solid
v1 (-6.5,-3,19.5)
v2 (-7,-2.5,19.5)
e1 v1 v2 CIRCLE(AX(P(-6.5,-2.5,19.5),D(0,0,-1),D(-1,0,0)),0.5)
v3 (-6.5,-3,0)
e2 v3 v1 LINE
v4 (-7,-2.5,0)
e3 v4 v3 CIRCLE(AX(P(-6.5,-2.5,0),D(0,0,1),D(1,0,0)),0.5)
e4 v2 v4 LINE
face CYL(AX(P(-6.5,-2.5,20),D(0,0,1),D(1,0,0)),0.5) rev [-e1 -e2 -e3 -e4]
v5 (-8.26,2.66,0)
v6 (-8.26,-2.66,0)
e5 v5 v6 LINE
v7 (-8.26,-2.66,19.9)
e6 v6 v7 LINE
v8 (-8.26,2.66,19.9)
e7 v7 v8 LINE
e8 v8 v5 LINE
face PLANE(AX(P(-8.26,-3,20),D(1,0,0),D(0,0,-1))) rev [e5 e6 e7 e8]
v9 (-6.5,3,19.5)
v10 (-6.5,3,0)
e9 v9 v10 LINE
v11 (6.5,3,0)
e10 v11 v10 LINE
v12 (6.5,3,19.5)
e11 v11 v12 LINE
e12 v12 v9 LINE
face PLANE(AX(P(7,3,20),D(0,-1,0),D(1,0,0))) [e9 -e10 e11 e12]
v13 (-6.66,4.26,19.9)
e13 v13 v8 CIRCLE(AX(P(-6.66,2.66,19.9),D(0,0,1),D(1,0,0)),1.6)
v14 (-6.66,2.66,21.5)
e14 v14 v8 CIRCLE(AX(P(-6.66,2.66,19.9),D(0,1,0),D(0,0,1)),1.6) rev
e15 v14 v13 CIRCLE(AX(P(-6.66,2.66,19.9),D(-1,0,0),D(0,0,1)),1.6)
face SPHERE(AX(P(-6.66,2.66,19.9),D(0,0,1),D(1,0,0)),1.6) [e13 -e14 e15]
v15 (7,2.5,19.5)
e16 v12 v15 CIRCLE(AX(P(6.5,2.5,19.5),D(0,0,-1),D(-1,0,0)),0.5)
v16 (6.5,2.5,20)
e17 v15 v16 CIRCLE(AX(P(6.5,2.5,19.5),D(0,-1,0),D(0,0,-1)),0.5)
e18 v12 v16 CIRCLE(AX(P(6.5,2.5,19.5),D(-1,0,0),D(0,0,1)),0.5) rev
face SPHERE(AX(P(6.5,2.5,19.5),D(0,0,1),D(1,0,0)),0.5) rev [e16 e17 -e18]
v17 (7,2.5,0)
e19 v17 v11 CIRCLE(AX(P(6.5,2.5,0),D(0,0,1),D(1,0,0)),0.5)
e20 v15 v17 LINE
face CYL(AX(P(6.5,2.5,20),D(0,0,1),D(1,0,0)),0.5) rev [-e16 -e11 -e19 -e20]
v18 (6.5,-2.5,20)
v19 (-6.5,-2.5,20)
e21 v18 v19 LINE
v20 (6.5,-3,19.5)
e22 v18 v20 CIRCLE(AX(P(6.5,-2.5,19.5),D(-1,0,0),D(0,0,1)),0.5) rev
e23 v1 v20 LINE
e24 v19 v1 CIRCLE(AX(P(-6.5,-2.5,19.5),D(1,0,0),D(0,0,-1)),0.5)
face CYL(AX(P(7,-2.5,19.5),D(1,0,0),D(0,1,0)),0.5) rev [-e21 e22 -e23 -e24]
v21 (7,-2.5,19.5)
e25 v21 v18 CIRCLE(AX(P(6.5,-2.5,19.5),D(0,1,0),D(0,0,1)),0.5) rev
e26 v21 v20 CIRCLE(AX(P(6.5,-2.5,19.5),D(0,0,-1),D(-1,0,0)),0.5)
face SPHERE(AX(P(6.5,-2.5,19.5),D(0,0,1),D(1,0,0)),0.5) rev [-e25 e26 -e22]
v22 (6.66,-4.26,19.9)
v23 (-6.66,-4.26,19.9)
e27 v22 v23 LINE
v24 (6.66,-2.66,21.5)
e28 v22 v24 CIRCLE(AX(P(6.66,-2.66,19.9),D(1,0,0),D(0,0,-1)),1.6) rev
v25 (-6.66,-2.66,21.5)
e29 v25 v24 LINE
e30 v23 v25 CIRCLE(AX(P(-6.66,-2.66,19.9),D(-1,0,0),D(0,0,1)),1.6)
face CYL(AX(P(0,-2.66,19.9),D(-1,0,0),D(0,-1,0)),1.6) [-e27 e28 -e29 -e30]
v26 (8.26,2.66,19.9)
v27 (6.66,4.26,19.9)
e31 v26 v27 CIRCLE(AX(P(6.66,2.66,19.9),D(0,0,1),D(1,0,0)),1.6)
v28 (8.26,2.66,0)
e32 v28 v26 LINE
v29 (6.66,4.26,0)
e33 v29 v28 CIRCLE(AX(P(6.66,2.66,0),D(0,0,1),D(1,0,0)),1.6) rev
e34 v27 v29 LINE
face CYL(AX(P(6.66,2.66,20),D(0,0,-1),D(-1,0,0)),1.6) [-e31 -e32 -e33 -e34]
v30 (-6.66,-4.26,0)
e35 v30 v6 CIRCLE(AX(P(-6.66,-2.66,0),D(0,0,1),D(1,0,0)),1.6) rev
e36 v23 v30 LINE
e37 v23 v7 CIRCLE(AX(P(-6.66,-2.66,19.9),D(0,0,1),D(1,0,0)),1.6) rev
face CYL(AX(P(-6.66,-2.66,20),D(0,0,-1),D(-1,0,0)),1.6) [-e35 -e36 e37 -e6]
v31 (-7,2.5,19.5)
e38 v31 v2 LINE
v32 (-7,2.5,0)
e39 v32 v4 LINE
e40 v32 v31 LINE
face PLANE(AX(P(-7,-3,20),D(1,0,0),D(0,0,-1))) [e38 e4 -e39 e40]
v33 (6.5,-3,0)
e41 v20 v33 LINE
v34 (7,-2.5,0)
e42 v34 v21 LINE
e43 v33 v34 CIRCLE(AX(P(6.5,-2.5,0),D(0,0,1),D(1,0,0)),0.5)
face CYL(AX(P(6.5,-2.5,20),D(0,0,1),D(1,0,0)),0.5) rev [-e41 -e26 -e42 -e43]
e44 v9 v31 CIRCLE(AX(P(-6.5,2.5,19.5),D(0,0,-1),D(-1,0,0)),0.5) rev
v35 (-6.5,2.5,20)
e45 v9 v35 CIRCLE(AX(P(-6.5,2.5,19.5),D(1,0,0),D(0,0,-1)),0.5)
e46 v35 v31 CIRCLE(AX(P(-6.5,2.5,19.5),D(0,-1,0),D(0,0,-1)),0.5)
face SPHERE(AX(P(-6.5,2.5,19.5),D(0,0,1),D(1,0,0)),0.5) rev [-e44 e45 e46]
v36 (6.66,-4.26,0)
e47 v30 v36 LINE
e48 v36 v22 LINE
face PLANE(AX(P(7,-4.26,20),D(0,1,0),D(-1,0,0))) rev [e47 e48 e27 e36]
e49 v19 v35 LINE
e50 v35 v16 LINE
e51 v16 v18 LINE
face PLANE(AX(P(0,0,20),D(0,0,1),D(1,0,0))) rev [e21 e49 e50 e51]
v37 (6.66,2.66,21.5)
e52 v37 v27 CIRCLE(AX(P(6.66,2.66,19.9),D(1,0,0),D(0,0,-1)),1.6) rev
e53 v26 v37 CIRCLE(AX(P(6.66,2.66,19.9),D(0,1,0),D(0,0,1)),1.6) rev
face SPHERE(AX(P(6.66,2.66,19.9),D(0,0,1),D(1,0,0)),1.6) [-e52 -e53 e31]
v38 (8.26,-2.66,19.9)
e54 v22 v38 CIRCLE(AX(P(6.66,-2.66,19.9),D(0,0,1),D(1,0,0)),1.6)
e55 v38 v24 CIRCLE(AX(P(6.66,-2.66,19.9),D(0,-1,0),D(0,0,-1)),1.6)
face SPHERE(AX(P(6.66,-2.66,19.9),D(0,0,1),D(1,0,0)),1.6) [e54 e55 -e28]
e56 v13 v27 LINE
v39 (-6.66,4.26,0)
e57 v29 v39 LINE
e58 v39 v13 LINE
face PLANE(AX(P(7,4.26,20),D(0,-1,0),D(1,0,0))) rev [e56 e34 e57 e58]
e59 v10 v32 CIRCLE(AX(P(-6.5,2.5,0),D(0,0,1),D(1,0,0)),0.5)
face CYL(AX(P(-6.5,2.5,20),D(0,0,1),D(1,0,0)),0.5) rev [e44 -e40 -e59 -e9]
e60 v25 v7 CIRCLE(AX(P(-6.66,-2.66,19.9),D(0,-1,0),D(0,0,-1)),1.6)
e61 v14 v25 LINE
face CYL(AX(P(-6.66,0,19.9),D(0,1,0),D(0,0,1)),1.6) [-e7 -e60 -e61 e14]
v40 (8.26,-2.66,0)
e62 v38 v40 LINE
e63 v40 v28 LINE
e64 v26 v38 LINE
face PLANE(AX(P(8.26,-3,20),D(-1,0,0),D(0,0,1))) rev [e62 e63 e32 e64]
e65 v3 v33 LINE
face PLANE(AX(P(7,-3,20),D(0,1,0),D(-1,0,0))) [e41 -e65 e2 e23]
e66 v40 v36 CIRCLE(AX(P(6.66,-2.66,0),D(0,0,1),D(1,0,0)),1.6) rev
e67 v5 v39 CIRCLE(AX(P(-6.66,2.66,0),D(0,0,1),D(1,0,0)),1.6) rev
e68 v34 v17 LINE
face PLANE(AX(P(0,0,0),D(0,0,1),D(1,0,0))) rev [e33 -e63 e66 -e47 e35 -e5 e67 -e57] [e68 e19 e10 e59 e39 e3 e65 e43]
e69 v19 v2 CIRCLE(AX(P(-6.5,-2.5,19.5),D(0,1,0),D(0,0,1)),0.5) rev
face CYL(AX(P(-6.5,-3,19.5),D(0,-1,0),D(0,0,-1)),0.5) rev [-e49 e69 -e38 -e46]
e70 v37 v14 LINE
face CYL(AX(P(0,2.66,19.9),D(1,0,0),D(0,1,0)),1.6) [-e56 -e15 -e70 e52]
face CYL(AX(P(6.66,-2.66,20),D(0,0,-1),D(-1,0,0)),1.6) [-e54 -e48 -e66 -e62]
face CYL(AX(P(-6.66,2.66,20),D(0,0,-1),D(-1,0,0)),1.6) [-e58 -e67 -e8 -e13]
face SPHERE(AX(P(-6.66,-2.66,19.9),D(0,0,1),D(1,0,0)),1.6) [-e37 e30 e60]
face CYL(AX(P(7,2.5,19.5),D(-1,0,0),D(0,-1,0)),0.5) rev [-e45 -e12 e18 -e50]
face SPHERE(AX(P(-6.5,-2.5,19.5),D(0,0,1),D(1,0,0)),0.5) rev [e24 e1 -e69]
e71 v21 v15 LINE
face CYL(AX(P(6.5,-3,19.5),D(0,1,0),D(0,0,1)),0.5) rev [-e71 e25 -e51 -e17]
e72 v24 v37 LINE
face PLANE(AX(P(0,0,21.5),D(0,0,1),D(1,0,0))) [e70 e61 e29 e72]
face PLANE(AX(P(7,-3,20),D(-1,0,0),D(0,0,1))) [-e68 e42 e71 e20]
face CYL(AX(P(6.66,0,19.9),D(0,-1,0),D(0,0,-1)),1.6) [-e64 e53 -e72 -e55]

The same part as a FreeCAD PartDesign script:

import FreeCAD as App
import Part
import Sketcher
from FreeCAD import Vector
Q = App.Units.Quantity


def edges_at(feature, points):
    """Names of the edges that pass closest to the given points."""
    edges = feature.Shape.Edges
    near = lambda p: min(range(len(edges)), key=lambda i: edges[i].distToShape(Part.Vertex(*p))[0])
    return sorted({f"Edge{near(p) + 1}" for p in points})


def add_polygon(sketch, points):
    """Adds a closed chain of lines whose ends are joined by coincident constraints."""
    first, n = sketch.GeometryCount, len(points)
    for a, b in zip(points, points[1:] + points[:1]):
        sketch.addGeometry(Part.LineSegment(App.Vector(*a, 0), App.Vector(*b, 0)), False)
    for i in range(n):
        sketch.addConstraint(Sketcher.Constraint("Coincident", first + i, 2, first + (i + 1) % n, 1))

doc = App.newDocument("Part")
params = doc.addObject("Spreadsheet::Sheet", "Params")
for row, (alias, value) in enumerate([
    ("sketch1_width", "14 mm"),
    ("sketch1_height", "6 mm"),
    ("sketch1_width2", "16.52 mm"),
    ("sketch1_height2", "8.52 mm"),
    ("pad1_length", "20 mm"),
    ("sketch2_width", "16.52 mm"),
    ("sketch2_height", "8.52 mm"),
    ("pad2_length", "1.5 mm"),
    ("fillet_radius", "1.6 mm"),
    ("fillet2_radius", "0.5 mm"),
], start=1):
    params.set(f"A{row}", alias)
    params.set(f"B{row}", "=" + value)
    params.setAlias(f"B{row}", alias)

body = doc.addObject("PartDesign::Body", "Body")

sketch1 = body.newObject("Sketcher::SketchObject", "Sketch")
sketch1.AttachmentSupport = (doc.getObject("XY_Plane"), [""])
sketch1.MapMode = "FlatFace"
add_polygon(sketch1, [(-8.26, 4.26), (-8.26, -4.26), (8.26, -4.26), (8.26, 4.26)])
add_polygon(sketch1, [(7, -3), (-7, -3), (-7, 3), (7, 3)])
sketch1.addConstraint([
    Sketcher.Constraint("Vertical", 0),
    Sketcher.Constraint("Horizontal", 1),
    Sketcher.Constraint("Vertical", 2),
    Sketcher.Constraint("Horizontal", 3),
    Sketcher.Constraint("Horizontal", 4),
    Sketcher.Constraint("Vertical", 5),
    Sketcher.Constraint("Horizontal", 6),
    Sketcher.Constraint("Vertical", 7),
    Sketcher.Constraint("Symmetric", 0, 2, 2, 2, -1, 1),
    Sketcher.Constraint("Symmetric", 4, 2, 6, 2, -1, 1),
    Sketcher.Constraint("DistanceX", 4, 2, 4, 1, Q("14 mm")),
    Sketcher.Constraint("DistanceY", 5, 1, 5, 2, Q("6 mm")),
    Sketcher.Constraint("DistanceX", 1, 1, 1, 2, Q("16.52 mm")),
    Sketcher.Constraint("DistanceY", 0, 2, 0, 1, Q("8.52 mm")),
])
sketch1.setExpression("Constraints[18]", "Params.sketch1_width")
sketch1.setExpression("Constraints[19]", "Params.sketch1_height")
sketch1.setExpression("Constraints[20]", "Params.sketch1_width2")
sketch1.setExpression("Constraints[21]", "Params.sketch1_height2")
pad1 = body.newObject("PartDesign::Pad", "Pad")
pad1.Profile = sketch1
pad1.setExpression("Length", "Params.pad1_length")

sketch2 = body.newObject("Sketcher::SketchObject", "Sketch001")
sketch2.AttachmentSupport = (doc.getObject("XY_Plane"), [""])
sketch2.MapMode = "FlatFace"
sketch2.AttachmentOffset = App.Placement(Vector(0, 0, 20), App.Rotation())
add_polygon(sketch2, [(-8.26, 4.26), (-8.26, -4.26), (8.26, -4.26), (8.26, 4.26)])
sketch2.addConstraint([
    Sketcher.Constraint("Vertical", 0),
    Sketcher.Constraint("Horizontal", 1),
    Sketcher.Constraint("Vertical", 2),
    Sketcher.Constraint("Horizontal", 3),
    Sketcher.Constraint("Symmetric", 0, 2, 2, 2, -1, 1),
    Sketcher.Constraint("DistanceX", 1, 1, 1, 2, Q("16.52 mm")),
    Sketcher.Constraint("DistanceY", 0, 2, 0, 1, Q("8.52 mm")),
])
sketch2.setExpression("Constraints[9]", "Params.sketch2_width")
sketch2.setExpression("Constraints[10]", "Params.sketch2_height")
pad2 = body.newObject("PartDesign::Pad", "Pad001")
pad2.Profile = sketch2
pad2.setExpression("Length", "Params.pad2_length")
doc.recompute()

fillet = body.newObject("PartDesign::Fillet", "Fillet")
fillet.Base = (pad2, edges_at(pad2, [
    (0, -4.26, 21.5),
    (8.26, 0, 21.5),
    (0, 4.26, 21.5),
    (-8.26, 0, 21.5),
    (-8.26, 4.26, 10.75),
    (8.26, 4.26, 10.75),
    (8.26, -4.26, 10.75),
    (-8.26, -4.26, 10.75),
]))
fillet.setExpression("Radius", "Params.fillet_radius")
doc.recompute()

fillet2 = body.newObject("PartDesign::Fillet", "Fillet001")
fillet2.Base = (fillet, edges_at(fillet, [
    (-7, 3, 10),
    (-7, -3, 10),
    (7, -3, 10),
    (7, 3, 10),
    (-7, 0, 20),
    (0, -3, 20),
    (7, 0, 20),
    (0, 3, 20),
]))
fillet2.setExpression("Radius", "Params.fillet2_radius")

doc.recompute()
